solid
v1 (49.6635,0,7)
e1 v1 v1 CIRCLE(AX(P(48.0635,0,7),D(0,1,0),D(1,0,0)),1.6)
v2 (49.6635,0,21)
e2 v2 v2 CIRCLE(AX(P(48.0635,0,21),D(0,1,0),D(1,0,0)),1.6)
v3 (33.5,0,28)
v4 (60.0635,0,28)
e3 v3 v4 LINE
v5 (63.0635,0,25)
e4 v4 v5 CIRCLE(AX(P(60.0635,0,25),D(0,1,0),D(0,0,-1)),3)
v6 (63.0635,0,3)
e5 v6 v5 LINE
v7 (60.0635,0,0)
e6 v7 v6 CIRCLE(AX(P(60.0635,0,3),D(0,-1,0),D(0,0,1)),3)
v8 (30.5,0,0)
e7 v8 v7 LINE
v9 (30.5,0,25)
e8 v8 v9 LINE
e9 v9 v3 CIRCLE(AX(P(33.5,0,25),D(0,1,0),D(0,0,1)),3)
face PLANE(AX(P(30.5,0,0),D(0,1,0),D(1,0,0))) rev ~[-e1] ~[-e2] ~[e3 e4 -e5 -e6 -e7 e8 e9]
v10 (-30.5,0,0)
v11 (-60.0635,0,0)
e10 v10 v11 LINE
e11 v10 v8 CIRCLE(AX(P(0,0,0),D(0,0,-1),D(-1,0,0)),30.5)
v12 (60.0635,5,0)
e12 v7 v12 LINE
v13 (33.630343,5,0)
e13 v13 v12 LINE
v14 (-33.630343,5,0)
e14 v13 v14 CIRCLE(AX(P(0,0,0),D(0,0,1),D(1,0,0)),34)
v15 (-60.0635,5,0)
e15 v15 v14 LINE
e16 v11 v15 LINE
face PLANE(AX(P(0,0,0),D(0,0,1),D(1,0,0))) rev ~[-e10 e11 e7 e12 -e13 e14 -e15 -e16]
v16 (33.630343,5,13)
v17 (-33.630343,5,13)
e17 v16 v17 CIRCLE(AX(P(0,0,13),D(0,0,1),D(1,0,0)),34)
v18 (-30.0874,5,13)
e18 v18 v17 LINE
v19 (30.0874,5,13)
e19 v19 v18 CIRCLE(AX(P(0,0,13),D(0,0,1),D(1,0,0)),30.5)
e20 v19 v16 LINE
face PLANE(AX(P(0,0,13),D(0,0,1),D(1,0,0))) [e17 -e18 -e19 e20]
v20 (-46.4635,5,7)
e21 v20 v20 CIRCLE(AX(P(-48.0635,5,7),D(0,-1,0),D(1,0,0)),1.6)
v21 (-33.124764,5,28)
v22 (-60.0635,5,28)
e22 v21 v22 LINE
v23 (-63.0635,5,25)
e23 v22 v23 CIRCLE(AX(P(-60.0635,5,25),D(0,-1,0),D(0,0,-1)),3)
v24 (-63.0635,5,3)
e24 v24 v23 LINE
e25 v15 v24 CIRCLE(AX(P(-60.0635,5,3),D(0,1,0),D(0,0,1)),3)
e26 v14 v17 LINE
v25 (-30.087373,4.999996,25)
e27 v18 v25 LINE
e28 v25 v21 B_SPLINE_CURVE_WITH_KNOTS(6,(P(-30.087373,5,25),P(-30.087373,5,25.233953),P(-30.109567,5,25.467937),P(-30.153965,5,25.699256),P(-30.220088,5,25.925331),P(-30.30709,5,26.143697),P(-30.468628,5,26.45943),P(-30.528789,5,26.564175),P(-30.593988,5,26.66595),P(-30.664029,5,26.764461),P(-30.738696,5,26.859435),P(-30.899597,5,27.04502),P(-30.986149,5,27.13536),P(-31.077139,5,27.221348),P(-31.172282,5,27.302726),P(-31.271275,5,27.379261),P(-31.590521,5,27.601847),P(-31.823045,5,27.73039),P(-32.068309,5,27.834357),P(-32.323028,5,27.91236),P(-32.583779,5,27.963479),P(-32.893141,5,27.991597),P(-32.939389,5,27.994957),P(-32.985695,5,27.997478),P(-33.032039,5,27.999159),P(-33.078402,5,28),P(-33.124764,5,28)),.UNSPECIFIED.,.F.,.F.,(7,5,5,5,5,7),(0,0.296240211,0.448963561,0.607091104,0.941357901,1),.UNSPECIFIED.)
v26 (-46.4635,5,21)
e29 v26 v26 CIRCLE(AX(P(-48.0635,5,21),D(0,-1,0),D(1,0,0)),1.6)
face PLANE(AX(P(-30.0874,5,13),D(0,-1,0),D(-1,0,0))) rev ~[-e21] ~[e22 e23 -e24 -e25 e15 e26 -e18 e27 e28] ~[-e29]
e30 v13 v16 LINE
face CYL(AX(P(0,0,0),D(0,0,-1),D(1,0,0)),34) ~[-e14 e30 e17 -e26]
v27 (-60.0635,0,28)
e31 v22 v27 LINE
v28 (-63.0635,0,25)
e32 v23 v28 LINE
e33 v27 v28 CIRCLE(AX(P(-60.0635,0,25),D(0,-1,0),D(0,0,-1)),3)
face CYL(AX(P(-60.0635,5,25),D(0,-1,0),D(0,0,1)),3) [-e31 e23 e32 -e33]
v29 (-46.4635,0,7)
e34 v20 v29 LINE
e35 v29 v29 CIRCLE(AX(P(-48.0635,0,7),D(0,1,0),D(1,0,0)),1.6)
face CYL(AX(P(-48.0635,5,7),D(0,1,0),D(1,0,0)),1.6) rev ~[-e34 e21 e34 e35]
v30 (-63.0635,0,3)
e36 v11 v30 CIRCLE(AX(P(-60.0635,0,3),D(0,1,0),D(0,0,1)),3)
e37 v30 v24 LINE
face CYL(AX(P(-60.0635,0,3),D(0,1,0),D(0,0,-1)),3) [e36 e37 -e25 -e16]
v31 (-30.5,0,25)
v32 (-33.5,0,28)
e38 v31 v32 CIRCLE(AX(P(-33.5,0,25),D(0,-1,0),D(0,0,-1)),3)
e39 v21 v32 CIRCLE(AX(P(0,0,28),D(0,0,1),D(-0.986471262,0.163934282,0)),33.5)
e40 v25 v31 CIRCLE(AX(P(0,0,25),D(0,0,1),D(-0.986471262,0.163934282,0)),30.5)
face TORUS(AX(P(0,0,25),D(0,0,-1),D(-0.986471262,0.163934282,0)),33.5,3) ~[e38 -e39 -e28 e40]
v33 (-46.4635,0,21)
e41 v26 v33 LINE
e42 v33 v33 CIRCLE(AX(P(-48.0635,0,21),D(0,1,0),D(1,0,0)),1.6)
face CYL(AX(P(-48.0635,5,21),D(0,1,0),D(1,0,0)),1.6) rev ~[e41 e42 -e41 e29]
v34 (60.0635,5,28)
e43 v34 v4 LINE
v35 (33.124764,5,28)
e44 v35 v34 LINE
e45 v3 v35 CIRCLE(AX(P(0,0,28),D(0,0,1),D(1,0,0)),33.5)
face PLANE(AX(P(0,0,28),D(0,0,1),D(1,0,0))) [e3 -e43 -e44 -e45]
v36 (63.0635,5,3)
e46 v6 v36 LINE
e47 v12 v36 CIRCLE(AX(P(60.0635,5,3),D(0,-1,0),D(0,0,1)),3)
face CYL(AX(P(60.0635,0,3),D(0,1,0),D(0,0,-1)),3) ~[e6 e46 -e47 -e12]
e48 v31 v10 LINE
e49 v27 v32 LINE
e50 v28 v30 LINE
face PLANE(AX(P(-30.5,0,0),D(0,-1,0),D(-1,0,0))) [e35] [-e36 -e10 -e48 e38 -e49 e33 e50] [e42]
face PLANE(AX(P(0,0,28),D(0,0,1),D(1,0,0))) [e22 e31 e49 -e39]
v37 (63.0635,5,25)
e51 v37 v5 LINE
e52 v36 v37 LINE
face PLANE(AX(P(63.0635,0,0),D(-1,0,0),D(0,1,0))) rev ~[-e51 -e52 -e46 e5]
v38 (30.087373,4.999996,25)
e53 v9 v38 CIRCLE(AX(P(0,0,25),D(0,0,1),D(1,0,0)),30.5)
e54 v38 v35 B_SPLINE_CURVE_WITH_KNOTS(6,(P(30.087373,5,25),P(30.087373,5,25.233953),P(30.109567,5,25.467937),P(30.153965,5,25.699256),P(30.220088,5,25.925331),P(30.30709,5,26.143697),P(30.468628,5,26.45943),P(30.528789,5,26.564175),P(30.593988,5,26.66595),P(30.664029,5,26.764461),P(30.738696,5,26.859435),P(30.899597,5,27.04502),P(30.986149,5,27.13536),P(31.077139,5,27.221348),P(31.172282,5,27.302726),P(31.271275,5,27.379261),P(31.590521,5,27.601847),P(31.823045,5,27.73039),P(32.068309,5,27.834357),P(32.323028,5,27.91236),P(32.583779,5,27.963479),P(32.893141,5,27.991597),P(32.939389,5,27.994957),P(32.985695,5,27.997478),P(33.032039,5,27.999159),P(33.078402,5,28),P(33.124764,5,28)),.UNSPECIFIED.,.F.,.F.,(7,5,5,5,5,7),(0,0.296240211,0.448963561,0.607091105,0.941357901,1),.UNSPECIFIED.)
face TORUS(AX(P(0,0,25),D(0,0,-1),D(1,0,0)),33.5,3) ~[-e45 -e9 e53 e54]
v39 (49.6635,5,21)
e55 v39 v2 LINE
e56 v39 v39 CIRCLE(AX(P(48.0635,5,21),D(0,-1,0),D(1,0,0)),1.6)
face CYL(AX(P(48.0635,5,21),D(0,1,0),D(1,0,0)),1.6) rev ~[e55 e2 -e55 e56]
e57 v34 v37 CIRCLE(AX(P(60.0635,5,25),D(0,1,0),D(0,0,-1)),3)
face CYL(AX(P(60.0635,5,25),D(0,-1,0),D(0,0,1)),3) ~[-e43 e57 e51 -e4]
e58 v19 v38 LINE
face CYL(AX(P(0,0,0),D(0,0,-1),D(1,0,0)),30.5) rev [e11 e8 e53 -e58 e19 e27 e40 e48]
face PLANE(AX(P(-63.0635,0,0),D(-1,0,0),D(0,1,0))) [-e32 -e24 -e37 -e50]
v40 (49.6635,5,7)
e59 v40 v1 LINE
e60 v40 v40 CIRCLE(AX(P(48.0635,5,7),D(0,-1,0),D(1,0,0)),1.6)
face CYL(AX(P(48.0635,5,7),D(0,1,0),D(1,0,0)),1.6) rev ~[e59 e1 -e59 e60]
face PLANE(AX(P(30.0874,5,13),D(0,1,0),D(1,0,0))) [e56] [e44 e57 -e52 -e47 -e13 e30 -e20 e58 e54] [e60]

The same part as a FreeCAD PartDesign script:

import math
import FreeCAD as App
import Part
import Sketcher
from FreeCAD import Vector
Q = App.Units.Quantity


def edges_at(feature, points):
    """Names of the edges that pass closest to the given points."""
    edges = feature.Shape.Edges
    near = lambda p: min(range(len(edges)), key=lambda i: edges[i].distToShape(Part.Vertex(*p))[0])
    return sorted({f"Edge{near(p) + 1}" for p in points})

doc = App.newDocument("Part")
params = doc.addObject("Spreadsheet::Sheet", "Params")
for row, (alias, value) in enumerate([
    ("sketch1_radius", "34 mm"),
    ("sketch1_radius2", "30.5 mm"),
    ("sketch1_height", "5 mm"),
    ("pad1_length", "13 mm"),
    ("sketch2_radius", "30.5 mm"),
    ("sketch2_height", "5 mm"),
    ("pad2_length", "15 mm"),
    ("sketch3_diameter", "3.2 mm"),
    ("pocket1_length", "15 mm"),
    ("fillet_radius", "3 mm"),
], start=1):
    params.set(f"A{row}", alias)
    params.set(f"B{row}", "=" + value)
    params.setAlias(f"B{row}", alias)

body = doc.addObject("PartDesign::Body", "Body")

# Sketch on XY plane
sketch1 = body.newObject("Sketcher::SketchObject", "Sketch")
sketch1.AttachmentSupport = (doc.getObject("XY_Plane"), [""])
sketch1.MapMode = "FlatFace"
sketch1.addGeometry(Part.LineSegment(Vector(30, 0, 0), Vector(63, 0, 0)), False)
sketch1.addGeometry(Part.LineSegment(Vector(63, 0, 0), Vector(63, 5, 0)), False)
sketch1.addGeometry(Part.LineSegment(Vector(63, 5, 0), Vector(34, 5, 0)), False)
sketch1.addGeometry(Part.ArcOfCircle(Part.Circle(Vector(0, 0, 0), Vector(0, 0, 1), 34), math.radians(8), math.radians(172)), False)
sketch1.addGeometry(Part.LineSegment(Vector(-34, 5, 0), Vector(-63, 5, 0)), False)
sketch1.addGeometry(Part.LineSegment(Vector(-63, 5, 0), Vector(-63, 0, 0)), False)
sketch1.addGeometry(Part.LineSegment(Vector(-63, 0, 0), Vector(-30, 0, 0)), False)
sketch1.addGeometry(Part.ArcOfCircle(Part.Circle(Vector(0, 0, 0), Vector(0, 0, 1), 30), math.radians(0), math.radians(180)), False)
sketch1.addConstraint(Sketcher.Constraint("Coincident", 0, 2, 1, 1))
sketch1.addConstraint(Sketcher.Constraint("Coincident", 1, 2, 2, 1))
sketch1.addConstraint(Sketcher.Constraint("Coincident", 2, 2, 3, 1))
sketch1.addConstraint(Sketcher.Constraint("Coincident", 3, 2, 4, 1))
sketch1.addConstraint(Sketcher.Constraint("Coincident", 4, 2, 5, 1))
sketch1.addConstraint(Sketcher.Constraint("Coincident", 5, 2, 6, 1))
sketch1.addConstraint(Sketcher.Constraint("Coincident", 6, 2, 7, 2))
sketch1.addConstraint(Sketcher.Constraint("Coincident", 7, 1, 0, 1))
sketch1.addConstraint(Sketcher.Constraint("Horizontal", 0))
sketch1.addConstraint(Sketcher.Constraint("Vertical", 1))
sketch1.addConstraint(Sketcher.Constraint("Horizontal", 2))
sketch1.addConstraint(Sketcher.Constraint("Horizontal", 4))
sketch1.addConstraint(Sketcher.Constraint("Vertical", 5))
sketch1.addConstraint(Sketcher.Constraint("Horizontal", 6))
sketch1.addConstraint(Sketcher.Constraint("Coincident", 3, 3, -1, 1))
sketch1.addConstraint(Sketcher.Constraint("Coincident", 7, 3, -1, 1))
sketch1.addConstraint(Sketcher.Constraint("Symmetric", 0, 2, 5, 2, -1, 1))
sketch1.addConstraint(Sketcher.Constraint("PointOnObject", 0, 2, -1))
sketch1.addConstraint(Sketcher.Constraint("Horizontal", 2, 2, 3, 2))
sketch1.addConstraint(Sketcher.Constraint("Radius", 3, Q("34 mm")))
sketch1.addConstraint(Sketcher.Constraint("Radius", 7, Q("30.5 mm")))
sketch1.addConstraint(Sketcher.Constraint("DistanceY", 1, 1, 1, 2, Q("5 mm")))
sketch1.addConstraint(Sketcher.Constraint("DistanceX", 0, 1, 0, 2, Q("32.5635 mm")))
sketch1.setExpression("Constraints[19]", "Params.sketch1_radius")
sketch1.setExpression("Constraints[20]", "Params.sketch1_radius2")
sketch1.setExpression("Constraints[21]", "Params.sketch1_height")
pad1 = body.newObject("PartDesign::Pad", "Pad")
pad1.Profile = sketch1
pad1.setExpression("Length", "Params.pad1_length")

# Sketch on XY plane
sketch2 = body.newObject("Sketcher::SketchObject", "Sketch001")
sketch2.AttachmentSupport = (doc.getObject("XY_Plane"), [""])
sketch2.MapMode = "FlatFace"
sketch2.AttachmentOffset = App.Placement(Vector(0, 0, 13), App.Rotation())
sketch2.addGeometry(Part.ArcOfCircle(Part.Circle(Vector(0, 0, 0), Vector(0, 0, 1), 30), math.radians(0), math.radians(9.44)), False)
sketch2.addGeometry(Part.LineSegment(Vector(30, 0, 0), Vector(63, 0, 0)), False)
sketch2.addGeometry(Part.LineSegment(Vector(63, 0, 0), Vector(63, 5, 0)), False)
sketch2.addGeometry(Part.LineSegment(Vector(63, 5, 0), Vector(30, 5, 0)), False)
sketch2.addGeometry(Part.LineSegment(Vector(-63, 0, 0), Vector(-30, 0, 0)), False)
sketch2.addGeometry(Part.ArcOfCircle(Part.Circle(Vector(0, 0, 0), Vector(0, 0, 1), 30), math.radians(170.56), math.radians(180)), False)
sketch2.addGeometry(Part.LineSegment(Vector(-30, 5, 0), Vector(-63, 5, 0)), False)
sketch2.addGeometry(Part.LineSegment(Vector(-63, 5, 0), Vector(-63, 0, 0)), False)
sketch2.addConstraint(Sketcher.Constraint("Coincident", 0, 1, 1, 1))
sketch2.addConstraint(Sketcher.Constraint("Coincident", 1, 2, 2, 1))
sketch2.addConstraint(Sketcher.Constraint("Coincident", 2, 2, 3, 1))
sketch2.addConstraint(Sketcher.Constraint("Coincident", 3, 2, 0, 2))
sketch2.addConstraint(Sketcher.Constraint("Coincident", 4, 2, 5, 2))
sketch2.addConstraint(Sketcher.Constraint("Coincident", 5, 1, 6, 1))
sketch2.addConstraint(Sketcher.Constraint("Coincident", 6, 2, 7, 1))
sketch2.addConstraint(Sketcher.Constraint("Coincident", 7, 2, 4, 1))
sketch2.addConstraint(Sketcher.Constraint("Horizontal", 1))
sketch2.addConstraint(Sketcher.Constraint("Vertical", 2))
sketch2.addConstraint(Sketcher.Constraint("Horizontal", 3))
sketch2.addConstraint(Sketcher.Constraint("Horizontal", 4))
sketch2.addConstraint(Sketcher.Constraint("Horizontal", 6))
sketch2.addConstraint(Sketcher.Constraint("Vertical", 7))
sketch2.addConstraint(Sketcher.Constraint("Coincident", 0, 3, -1, 1))
sketch2.addConstraint(Sketcher.Constraint("Coincident", 5, 3, -1, 1))
sketch2.addConstraint(Sketcher.Constraint("Equal", 0, 5))
sketch2.addConstraint(Sketcher.Constraint("Symmetric", 1, 2, 7, 2, -1, 1))
sketch2.addConstraint(Sketcher.Constraint("PointOnObject", 0, 1, -1))
sketch2.addConstraint(Sketcher.Constraint("Horizontal", 3, 2, 5, 1))
sketch2.addConstraint(Sketcher.Constraint("Radius", 0, Q("30.5 mm")))
sketch2.addConstraint(Sketcher.Constraint("DistanceY", 2, 1, 2, 2, Q("5 mm")))
sketch2.addConstraint(Sketcher.Constraint("DistanceX", 3, 2, 3, 1, Q("32.976 mm")))
sketch2.setExpression("Constraints[20]", "Params.sketch2_radius")
sketch2.setExpression("Constraints[21]", "Params.sketch2_height")
pad2 = body.newObject("PartDesign::Pad", "Pad001")
pad2.Profile = sketch2
pad2.setExpression("Length", "Params.pad2_length")

# Sketch on XZ plane
sketch3 = body.newObject("Sketcher::SketchObject", "Sketch002")
sketch3.AttachmentSupport = (doc.getObject("XZ_Plane"), [""])
sketch3.MapMode = "FlatFace"
sketch3.AttachmentOffset = App.Placement(Vector(0, 0, -5), App.Rotation())
sketch3.addGeometry(Part.Circle(Vector(-48.1, 7, 0), Vector(0, 0, 1), 1.6), False)
sketch3.addGeometry(Part.Circle(Vector(-48.1, 21, 0), Vector(0, 0, 1), 1.6), False)
sketch3.addGeometry(Part.Circle(Vector(48.1, 7, 0), Vector(0, 0, 1), 1.6), False)
sketch3.addGeometry(Part.Circle(Vector(48.1, 21, 0), Vector(0, 0, 1), 1.6), False)
sketch3.addConstraint(Sketcher.Constraint("Equal", 0, 1))
sketch3.addConstraint(Sketcher.Constraint("Equal", 1, 2))
sketch3.addConstraint(Sketcher.Constraint("Equal", 2, 3))
sketch3.addConstraint(Sketcher.Constraint("Symmetric", 0, 3, 2, 3, -2))
sketch3.addConstraint(Sketcher.Constraint("Symmetric", 1, 3, 3, 3, -2))
sketch3.addConstraint(Sketcher.Constraint("Vertical", 0, 3, 1, 3))
sketch3.addConstraint(Sketcher.Constraint("Diameter", 0, Q("3.2 mm")))
sketch3.addConstraint(Sketcher.Constraint("DistanceY", -1, 1, 0, 3, Q("7 mm")))
sketch3.addConstraint(Sketcher.Constraint("DistanceY", 0, 3, 1, 3, Q("14 mm")))
sketch3.addConstraint(Sketcher.Constraint("DistanceX", 0, 3, 2, 3, Q("96.127 mm")))
sketch3.setExpression("Constraints[6]", "Params.sketch3_diameter")
pocket1 = body.newObject("PartDesign::Pocket", "Pocket")
pocket1.Profile = sketch3
pocket1.setExpression("Length", "Params.pocket1_length")
pocket1.Reversed = True
doc.recompute()

fillet = body.newObject("PartDesign::Fillet", "Fillet")
fillet.Base = (pocket1, edges_at(pocket1, [
    (30.397, 2.509, 28),
    (63.063, 2.5, 28),
    (63.063, 2.5, 0),
    (-63.063, 2.5, 0),
    (-63.063, 2.5, 28),
    (-30.397, 2.509, 28),
]))
fillet.setExpression("Radius", "Params.fillet_radius")

doc.recompute()
